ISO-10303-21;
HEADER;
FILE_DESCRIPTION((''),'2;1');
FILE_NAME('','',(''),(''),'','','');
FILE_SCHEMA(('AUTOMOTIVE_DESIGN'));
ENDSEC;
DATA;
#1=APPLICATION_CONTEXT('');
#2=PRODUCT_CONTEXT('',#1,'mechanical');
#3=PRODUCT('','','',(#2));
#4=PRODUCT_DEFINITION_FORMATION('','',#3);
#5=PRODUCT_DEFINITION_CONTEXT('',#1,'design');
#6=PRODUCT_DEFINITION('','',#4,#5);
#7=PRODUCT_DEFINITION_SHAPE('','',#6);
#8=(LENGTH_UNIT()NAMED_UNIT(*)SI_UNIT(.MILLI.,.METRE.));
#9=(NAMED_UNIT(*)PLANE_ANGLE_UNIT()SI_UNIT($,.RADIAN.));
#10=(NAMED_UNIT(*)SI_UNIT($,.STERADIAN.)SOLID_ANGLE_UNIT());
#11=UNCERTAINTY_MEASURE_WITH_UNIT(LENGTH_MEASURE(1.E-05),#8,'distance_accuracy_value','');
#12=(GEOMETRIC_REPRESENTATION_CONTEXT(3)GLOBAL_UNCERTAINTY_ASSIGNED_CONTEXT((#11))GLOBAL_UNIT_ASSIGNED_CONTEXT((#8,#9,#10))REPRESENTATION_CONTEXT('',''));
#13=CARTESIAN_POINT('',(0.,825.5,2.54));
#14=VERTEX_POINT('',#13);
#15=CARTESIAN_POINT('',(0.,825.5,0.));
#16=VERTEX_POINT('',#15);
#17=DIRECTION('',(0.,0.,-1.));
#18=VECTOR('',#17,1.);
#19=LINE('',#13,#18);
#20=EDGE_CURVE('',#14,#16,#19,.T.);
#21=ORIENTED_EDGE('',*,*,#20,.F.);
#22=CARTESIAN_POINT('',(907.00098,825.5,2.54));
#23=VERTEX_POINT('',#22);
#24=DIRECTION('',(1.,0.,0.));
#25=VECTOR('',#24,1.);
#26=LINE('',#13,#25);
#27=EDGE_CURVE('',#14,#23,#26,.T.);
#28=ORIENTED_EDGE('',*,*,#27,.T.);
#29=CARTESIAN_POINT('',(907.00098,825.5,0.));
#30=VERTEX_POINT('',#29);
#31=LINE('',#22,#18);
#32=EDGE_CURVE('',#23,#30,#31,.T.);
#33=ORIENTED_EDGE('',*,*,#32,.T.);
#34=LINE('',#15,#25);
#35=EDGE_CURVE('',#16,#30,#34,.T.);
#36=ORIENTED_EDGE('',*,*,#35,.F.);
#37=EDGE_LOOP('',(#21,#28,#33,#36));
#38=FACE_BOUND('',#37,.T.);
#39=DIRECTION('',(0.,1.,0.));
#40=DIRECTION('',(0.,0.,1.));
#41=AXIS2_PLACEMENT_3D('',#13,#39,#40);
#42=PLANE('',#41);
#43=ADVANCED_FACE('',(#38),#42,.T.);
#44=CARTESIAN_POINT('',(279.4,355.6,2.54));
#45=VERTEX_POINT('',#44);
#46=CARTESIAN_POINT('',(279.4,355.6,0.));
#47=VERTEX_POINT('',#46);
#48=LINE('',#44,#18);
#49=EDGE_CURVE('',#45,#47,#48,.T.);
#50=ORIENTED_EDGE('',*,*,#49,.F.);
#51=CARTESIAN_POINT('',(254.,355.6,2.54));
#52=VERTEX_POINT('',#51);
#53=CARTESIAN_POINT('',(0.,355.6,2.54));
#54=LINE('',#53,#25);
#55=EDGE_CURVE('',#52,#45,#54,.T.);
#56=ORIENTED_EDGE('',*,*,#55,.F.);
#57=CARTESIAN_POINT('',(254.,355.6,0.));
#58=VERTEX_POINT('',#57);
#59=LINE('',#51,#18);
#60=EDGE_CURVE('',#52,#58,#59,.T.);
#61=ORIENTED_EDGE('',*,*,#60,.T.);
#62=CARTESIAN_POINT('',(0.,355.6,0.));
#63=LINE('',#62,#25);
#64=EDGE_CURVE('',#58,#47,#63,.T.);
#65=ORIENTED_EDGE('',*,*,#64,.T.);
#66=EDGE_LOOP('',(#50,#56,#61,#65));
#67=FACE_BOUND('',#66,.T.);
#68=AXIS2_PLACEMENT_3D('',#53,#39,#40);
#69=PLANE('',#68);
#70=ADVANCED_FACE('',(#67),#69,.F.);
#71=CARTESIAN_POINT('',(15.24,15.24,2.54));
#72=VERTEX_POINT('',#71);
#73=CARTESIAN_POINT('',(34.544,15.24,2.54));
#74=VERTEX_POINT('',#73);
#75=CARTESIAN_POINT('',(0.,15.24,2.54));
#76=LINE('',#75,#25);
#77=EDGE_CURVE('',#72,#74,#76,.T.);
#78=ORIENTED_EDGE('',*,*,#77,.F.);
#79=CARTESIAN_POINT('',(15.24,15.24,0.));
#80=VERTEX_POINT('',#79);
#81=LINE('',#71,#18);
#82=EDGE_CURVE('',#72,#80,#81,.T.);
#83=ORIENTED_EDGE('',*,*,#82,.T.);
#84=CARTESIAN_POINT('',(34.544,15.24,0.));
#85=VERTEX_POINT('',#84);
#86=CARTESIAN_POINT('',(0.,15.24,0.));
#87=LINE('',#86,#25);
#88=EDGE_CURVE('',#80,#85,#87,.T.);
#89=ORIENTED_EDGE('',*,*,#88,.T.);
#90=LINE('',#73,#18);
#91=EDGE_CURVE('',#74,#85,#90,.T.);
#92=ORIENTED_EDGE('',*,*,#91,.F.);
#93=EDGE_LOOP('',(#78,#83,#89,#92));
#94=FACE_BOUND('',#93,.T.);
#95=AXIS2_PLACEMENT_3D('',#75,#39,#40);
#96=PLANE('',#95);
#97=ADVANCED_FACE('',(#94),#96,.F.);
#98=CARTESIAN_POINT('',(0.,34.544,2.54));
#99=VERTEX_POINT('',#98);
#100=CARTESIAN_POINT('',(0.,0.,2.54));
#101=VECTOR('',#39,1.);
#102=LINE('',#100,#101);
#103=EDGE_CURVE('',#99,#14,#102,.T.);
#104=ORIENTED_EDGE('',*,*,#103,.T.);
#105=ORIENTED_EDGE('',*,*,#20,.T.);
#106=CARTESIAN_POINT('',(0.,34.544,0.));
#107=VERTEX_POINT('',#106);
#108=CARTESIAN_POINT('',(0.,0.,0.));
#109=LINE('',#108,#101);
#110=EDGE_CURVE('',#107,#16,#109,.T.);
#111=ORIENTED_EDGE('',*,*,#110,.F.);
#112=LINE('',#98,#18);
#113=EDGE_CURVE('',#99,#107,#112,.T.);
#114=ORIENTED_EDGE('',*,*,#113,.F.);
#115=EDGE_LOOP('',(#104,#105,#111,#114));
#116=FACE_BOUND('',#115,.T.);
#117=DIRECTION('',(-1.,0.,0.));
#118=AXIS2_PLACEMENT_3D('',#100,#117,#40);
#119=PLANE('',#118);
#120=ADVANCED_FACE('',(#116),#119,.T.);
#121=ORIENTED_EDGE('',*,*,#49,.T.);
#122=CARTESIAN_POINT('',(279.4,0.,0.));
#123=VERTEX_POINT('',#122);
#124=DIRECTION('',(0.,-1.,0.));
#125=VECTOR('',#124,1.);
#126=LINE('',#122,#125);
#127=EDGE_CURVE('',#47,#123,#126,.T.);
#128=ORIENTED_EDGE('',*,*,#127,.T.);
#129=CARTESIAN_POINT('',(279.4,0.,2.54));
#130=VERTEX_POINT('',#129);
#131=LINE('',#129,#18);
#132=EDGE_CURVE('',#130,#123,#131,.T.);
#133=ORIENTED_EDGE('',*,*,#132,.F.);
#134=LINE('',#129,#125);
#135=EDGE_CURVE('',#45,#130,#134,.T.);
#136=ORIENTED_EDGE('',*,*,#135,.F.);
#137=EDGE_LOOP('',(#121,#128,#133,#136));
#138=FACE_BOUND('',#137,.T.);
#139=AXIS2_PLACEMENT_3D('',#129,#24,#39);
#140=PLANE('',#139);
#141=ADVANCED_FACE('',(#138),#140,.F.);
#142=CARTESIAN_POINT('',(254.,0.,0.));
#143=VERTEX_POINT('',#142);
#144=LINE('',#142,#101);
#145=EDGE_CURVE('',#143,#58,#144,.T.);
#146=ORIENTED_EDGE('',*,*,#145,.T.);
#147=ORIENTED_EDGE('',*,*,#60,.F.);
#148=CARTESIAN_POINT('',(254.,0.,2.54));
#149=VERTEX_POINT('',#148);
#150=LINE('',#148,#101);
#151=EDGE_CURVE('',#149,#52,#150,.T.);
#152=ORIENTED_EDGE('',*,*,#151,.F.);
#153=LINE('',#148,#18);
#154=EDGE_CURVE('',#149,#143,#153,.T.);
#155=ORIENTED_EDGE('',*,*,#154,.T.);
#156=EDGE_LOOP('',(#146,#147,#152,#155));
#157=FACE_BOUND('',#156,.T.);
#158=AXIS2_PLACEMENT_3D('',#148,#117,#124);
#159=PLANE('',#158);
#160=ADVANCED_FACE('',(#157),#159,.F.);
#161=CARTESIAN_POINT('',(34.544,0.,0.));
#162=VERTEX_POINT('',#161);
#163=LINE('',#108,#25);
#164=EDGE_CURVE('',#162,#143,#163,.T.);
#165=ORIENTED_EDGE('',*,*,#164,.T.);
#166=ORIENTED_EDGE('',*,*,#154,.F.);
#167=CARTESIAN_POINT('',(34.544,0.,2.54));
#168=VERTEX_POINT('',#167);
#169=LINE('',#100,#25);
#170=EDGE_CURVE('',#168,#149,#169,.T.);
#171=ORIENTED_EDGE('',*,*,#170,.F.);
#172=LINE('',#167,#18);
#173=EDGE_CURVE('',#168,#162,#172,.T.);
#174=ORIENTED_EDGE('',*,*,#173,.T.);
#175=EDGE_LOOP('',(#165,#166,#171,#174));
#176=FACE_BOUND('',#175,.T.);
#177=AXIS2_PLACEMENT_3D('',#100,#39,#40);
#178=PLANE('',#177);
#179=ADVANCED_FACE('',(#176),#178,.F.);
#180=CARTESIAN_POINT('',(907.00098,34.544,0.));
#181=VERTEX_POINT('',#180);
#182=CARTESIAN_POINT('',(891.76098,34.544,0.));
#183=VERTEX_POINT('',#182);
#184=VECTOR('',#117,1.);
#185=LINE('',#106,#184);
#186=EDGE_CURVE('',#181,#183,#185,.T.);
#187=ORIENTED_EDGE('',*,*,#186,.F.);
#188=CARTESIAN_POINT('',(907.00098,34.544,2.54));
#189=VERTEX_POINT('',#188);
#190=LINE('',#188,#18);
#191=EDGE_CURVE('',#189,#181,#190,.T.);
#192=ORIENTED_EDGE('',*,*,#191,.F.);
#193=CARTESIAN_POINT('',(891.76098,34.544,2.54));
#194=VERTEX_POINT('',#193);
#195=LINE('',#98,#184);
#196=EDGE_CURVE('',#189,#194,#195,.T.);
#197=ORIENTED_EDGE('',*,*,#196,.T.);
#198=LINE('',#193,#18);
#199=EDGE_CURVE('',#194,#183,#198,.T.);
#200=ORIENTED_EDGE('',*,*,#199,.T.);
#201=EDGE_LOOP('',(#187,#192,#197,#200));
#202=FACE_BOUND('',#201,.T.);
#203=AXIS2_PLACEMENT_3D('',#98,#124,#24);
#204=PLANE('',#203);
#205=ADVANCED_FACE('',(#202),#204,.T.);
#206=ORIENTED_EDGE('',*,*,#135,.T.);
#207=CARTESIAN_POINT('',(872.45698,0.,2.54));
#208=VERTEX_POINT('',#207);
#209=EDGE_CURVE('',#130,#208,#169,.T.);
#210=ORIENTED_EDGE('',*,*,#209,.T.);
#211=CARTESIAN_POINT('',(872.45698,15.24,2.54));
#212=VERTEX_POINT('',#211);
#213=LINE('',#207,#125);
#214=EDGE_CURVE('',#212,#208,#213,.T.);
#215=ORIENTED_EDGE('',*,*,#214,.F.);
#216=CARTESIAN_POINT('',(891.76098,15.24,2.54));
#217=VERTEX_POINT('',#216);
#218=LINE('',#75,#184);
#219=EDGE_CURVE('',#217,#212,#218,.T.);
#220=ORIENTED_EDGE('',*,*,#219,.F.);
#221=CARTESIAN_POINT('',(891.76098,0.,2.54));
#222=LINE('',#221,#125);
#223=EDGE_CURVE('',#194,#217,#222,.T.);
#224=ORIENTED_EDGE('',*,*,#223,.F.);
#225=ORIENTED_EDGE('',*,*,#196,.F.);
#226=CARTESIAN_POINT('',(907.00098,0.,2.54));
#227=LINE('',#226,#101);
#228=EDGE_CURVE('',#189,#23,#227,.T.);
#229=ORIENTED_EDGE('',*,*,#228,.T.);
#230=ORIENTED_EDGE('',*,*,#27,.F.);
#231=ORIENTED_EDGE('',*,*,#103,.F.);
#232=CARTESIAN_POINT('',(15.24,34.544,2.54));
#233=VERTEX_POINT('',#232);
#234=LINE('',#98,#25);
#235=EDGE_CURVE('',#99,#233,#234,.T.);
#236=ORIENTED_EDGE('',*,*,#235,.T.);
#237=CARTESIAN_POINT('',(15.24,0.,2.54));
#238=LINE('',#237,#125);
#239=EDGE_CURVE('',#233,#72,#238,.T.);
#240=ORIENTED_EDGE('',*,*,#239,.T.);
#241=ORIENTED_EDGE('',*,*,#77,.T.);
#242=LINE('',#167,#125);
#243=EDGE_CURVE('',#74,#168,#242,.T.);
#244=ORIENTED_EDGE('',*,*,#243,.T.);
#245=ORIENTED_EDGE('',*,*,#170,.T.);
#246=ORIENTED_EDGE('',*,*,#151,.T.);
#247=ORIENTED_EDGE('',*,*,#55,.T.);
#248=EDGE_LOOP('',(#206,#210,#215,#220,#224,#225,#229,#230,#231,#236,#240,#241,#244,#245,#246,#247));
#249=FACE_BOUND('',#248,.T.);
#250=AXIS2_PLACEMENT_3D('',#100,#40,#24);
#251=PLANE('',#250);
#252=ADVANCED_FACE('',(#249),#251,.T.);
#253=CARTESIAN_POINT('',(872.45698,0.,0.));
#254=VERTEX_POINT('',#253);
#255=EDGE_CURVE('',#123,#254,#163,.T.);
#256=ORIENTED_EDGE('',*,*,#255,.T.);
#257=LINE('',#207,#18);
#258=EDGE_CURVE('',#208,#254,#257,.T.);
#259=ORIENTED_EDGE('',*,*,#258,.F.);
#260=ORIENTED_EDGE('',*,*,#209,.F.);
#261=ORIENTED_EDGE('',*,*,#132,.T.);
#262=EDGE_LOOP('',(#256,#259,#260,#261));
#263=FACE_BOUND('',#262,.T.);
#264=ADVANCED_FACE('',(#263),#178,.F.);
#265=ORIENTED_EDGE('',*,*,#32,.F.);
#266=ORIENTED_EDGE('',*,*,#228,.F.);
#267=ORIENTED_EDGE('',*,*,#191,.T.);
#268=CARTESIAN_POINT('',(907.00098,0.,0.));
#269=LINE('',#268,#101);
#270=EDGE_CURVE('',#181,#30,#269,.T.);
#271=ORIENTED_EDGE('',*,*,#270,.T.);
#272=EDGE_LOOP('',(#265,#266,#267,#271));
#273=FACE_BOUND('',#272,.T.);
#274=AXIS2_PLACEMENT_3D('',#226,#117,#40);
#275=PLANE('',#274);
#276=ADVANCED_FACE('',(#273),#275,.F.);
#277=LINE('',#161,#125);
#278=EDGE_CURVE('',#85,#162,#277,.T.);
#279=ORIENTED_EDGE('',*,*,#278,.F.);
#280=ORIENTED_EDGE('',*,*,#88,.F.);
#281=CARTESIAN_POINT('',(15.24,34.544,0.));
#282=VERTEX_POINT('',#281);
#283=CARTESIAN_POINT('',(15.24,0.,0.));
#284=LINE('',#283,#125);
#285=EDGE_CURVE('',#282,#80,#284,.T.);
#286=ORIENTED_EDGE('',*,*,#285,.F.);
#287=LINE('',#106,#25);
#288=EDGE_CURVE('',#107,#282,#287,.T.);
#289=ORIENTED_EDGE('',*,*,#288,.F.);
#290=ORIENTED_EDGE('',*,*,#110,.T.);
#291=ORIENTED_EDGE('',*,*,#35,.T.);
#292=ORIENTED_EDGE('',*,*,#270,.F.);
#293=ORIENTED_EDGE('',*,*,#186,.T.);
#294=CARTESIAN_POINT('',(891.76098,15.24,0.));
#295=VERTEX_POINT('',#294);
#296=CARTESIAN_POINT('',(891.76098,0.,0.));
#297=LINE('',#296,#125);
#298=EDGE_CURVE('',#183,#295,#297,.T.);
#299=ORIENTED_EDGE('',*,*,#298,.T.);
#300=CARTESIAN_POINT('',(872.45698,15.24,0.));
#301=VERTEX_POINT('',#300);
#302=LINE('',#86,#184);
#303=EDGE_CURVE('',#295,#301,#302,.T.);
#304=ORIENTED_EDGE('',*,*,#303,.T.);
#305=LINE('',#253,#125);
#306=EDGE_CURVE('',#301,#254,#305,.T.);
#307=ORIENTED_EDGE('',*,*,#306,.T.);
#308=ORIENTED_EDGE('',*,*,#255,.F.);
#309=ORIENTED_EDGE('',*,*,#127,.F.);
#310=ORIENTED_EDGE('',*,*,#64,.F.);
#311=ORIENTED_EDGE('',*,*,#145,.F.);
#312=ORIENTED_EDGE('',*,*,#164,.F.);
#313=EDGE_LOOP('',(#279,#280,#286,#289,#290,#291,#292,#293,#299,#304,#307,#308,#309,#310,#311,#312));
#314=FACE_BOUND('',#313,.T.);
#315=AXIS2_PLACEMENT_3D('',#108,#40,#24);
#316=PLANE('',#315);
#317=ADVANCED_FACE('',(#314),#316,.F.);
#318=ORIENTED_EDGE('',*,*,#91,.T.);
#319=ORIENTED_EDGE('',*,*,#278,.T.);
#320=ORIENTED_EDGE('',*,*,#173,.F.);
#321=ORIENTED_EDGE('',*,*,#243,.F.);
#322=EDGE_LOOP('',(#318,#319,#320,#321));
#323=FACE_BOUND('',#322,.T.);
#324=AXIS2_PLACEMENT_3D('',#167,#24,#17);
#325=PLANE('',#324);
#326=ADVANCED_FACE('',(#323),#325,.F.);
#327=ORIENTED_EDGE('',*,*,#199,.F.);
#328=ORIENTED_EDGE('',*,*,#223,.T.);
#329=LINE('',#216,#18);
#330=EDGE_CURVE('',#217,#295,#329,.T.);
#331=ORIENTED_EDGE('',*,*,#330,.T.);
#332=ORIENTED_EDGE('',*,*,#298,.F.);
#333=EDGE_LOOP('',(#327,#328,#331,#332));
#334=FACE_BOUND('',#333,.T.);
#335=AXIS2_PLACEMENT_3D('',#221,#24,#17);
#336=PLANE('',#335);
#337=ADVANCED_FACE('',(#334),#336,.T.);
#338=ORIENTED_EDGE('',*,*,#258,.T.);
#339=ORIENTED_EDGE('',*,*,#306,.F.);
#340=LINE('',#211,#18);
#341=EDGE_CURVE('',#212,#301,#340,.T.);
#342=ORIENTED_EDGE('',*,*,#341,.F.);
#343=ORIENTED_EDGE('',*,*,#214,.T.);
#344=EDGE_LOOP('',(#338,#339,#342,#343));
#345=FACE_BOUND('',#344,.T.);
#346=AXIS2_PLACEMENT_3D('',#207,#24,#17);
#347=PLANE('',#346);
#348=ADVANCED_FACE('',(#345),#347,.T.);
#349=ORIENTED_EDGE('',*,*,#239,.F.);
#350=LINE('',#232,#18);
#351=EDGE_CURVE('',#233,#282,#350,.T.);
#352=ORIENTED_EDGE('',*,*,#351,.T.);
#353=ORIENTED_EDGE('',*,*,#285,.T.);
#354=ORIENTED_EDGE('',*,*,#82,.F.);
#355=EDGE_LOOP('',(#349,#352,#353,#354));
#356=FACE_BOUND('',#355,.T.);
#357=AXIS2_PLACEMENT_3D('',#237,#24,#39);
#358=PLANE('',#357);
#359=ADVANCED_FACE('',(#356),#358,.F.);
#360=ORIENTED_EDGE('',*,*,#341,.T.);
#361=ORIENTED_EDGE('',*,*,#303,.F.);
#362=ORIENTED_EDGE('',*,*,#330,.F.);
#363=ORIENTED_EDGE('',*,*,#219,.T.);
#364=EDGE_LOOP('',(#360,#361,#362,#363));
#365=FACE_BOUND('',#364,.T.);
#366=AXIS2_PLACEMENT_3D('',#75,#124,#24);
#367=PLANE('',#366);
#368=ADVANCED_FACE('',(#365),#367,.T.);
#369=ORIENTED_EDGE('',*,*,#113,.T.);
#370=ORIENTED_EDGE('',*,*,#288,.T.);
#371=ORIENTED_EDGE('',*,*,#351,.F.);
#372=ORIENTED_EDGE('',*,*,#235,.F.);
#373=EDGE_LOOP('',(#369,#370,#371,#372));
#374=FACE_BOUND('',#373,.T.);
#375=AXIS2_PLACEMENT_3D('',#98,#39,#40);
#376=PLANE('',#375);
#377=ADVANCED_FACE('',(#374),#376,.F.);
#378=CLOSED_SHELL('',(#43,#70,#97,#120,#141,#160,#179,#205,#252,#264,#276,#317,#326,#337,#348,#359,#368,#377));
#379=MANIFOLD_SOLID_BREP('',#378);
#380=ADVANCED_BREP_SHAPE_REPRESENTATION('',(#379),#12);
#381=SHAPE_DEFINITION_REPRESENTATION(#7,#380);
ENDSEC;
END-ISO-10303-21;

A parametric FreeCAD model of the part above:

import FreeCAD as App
import Part
import Sketcher
from FreeCAD import Vector
Q = App.Units.Quantity


def add_polygon(sketch, points):
    """Adds a closed chain of lines whose ends are joined by coincident constraints."""
    first, n = sketch.GeometryCount, len(points)
    for a, b in zip(points, points[1:] + points[:1]):
        sketch.addGeometry(Part.LineSegment(App.Vector(*a, 0), App.Vector(*b, 0)), False)
    for i in range(n):
        sketch.addConstraint(Sketcher.Constraint("Coincident", first + i, 2, first + (i + 1) % n, 1))

doc = App.newDocument("Part")
body = doc.addObject("PartDesign::Body", "Body")

sketch1 = body.newObject("Sketcher::SketchObject", "Sketch")
sketch1.AttachmentSupport = (doc.getObject("XY_Plane"), [""])
sketch1.MapMode = "FlatFace"
add_polygon(sketch1, [(0, 825.5), (0, 34.544), (15.24, 34.544), (15.24, 15.24), (34.544, 15.24), (34.544, 0), (254, 0), (254, 355.6), (279.4, 355.6), (279.4, 0), (872.45698, 0), (872.45698, 15.24), (891.76098, 15.24), (891.76098, 34.544), (907.00098, 34.544), (907.00098, 825.5)])
sketch1.addConstraint(Sketcher.Constraint("Vertical", 0))
sketch1.addConstraint(Sketcher.Constraint("Horizontal", 1))
sketch1.addConstraint(Sketcher.Constraint("Vertical", 2))
sketch1.addConstraint(Sketcher.Constraint("Horizontal", 3))
sketch1.addConstraint(Sketcher.Constraint("Vertical", 4))
sketch1.addConstraint(Sketcher.Constraint("Horizontal", 5))
sketch1.addConstraint(Sketcher.Constraint("Vertical", 6))
sketch1.addConstraint(Sketcher.Constraint("Horizontal", 7))
sketch1.addConstraint(Sketcher.Constraint("Vertical", 8))
sketch1.addConstraint(Sketcher.Constraint("Horizontal", 9))
sketch1.addConstraint(Sketcher.Constraint("Vertical", 10))
sketch1.addConstraint(Sketcher.Constraint("Horizontal", 11))
sketch1.addConstraint(Sketcher.Constraint("Vertical", 12))
sketch1.addConstraint(Sketcher.Constraint("Horizontal", 13))
sketch1.addConstraint(Sketcher.Constraint("Vertical", 14))
sketch1.addConstraint(Sketcher.Constraint("Horizontal", 15))
sketch1.addConstraint(Sketcher.Constraint("PointOnObject", 0, 2, -2))
sketch1.addConstraint(Sketcher.Constraint("PointOnObject", 4, 2, -1))
sketch1.addConstraint(Sketcher.Constraint("PointOnObject", 8, 2, -1))
sketch1.addConstraint(Sketcher.Constraint("Horizontal", 3, 2, 10, 2))
sketch1.addConstraint(Sketcher.Constraint("Horizontal", 1, 2, 12, 2))
sketch1.addConstraint(Sketcher.Constraint("Equal", 3, 11))
sketch1.addConstraint(Sketcher.Constraint("Equal", 1, 13))
sketch1.addConstraint(Sketcher.Constraint("Equal", 11, 2))
sketch1.addConstraint(Sketcher.Constraint("Equal", 13, 4))
sketch1.addConstraint(Sketcher.Constraint("DistanceX", 7, 1, 7, 2, Q("1 in")))
sketch1.addConstraint(Sketcher.Constraint("DistanceY", 6, 1, 6, 2, Q("14 in")))
sketch1.addConstraint(Sketcher.Constraint("DistanceX", 1, 1, 1, 2, Q("0.6 in")))
sketch1.addConstraint(Sketcher.Constraint("DistanceX", -1, 1, 5, 2, Q("10 in")))
sketch1.addConstraint(Sketcher.Constraint("DistanceX", 3, 1, 3, 2, Q("0.76 in")))
sketch1.addConstraint(Sketcher.Constraint("DistanceY", 0, 2, 0, 1, Q("31.14 in")))
sketch1.addConstraint(Sketcher.Constraint("DistanceX", 9, 1, 9, 2, Q("23.3487 in")))
pad1 = body.newObject("PartDesign::Pad", "Pad")
pad1.Profile = sketch1
pad1.Length = Q("0.1 in")

doc.recompute()
